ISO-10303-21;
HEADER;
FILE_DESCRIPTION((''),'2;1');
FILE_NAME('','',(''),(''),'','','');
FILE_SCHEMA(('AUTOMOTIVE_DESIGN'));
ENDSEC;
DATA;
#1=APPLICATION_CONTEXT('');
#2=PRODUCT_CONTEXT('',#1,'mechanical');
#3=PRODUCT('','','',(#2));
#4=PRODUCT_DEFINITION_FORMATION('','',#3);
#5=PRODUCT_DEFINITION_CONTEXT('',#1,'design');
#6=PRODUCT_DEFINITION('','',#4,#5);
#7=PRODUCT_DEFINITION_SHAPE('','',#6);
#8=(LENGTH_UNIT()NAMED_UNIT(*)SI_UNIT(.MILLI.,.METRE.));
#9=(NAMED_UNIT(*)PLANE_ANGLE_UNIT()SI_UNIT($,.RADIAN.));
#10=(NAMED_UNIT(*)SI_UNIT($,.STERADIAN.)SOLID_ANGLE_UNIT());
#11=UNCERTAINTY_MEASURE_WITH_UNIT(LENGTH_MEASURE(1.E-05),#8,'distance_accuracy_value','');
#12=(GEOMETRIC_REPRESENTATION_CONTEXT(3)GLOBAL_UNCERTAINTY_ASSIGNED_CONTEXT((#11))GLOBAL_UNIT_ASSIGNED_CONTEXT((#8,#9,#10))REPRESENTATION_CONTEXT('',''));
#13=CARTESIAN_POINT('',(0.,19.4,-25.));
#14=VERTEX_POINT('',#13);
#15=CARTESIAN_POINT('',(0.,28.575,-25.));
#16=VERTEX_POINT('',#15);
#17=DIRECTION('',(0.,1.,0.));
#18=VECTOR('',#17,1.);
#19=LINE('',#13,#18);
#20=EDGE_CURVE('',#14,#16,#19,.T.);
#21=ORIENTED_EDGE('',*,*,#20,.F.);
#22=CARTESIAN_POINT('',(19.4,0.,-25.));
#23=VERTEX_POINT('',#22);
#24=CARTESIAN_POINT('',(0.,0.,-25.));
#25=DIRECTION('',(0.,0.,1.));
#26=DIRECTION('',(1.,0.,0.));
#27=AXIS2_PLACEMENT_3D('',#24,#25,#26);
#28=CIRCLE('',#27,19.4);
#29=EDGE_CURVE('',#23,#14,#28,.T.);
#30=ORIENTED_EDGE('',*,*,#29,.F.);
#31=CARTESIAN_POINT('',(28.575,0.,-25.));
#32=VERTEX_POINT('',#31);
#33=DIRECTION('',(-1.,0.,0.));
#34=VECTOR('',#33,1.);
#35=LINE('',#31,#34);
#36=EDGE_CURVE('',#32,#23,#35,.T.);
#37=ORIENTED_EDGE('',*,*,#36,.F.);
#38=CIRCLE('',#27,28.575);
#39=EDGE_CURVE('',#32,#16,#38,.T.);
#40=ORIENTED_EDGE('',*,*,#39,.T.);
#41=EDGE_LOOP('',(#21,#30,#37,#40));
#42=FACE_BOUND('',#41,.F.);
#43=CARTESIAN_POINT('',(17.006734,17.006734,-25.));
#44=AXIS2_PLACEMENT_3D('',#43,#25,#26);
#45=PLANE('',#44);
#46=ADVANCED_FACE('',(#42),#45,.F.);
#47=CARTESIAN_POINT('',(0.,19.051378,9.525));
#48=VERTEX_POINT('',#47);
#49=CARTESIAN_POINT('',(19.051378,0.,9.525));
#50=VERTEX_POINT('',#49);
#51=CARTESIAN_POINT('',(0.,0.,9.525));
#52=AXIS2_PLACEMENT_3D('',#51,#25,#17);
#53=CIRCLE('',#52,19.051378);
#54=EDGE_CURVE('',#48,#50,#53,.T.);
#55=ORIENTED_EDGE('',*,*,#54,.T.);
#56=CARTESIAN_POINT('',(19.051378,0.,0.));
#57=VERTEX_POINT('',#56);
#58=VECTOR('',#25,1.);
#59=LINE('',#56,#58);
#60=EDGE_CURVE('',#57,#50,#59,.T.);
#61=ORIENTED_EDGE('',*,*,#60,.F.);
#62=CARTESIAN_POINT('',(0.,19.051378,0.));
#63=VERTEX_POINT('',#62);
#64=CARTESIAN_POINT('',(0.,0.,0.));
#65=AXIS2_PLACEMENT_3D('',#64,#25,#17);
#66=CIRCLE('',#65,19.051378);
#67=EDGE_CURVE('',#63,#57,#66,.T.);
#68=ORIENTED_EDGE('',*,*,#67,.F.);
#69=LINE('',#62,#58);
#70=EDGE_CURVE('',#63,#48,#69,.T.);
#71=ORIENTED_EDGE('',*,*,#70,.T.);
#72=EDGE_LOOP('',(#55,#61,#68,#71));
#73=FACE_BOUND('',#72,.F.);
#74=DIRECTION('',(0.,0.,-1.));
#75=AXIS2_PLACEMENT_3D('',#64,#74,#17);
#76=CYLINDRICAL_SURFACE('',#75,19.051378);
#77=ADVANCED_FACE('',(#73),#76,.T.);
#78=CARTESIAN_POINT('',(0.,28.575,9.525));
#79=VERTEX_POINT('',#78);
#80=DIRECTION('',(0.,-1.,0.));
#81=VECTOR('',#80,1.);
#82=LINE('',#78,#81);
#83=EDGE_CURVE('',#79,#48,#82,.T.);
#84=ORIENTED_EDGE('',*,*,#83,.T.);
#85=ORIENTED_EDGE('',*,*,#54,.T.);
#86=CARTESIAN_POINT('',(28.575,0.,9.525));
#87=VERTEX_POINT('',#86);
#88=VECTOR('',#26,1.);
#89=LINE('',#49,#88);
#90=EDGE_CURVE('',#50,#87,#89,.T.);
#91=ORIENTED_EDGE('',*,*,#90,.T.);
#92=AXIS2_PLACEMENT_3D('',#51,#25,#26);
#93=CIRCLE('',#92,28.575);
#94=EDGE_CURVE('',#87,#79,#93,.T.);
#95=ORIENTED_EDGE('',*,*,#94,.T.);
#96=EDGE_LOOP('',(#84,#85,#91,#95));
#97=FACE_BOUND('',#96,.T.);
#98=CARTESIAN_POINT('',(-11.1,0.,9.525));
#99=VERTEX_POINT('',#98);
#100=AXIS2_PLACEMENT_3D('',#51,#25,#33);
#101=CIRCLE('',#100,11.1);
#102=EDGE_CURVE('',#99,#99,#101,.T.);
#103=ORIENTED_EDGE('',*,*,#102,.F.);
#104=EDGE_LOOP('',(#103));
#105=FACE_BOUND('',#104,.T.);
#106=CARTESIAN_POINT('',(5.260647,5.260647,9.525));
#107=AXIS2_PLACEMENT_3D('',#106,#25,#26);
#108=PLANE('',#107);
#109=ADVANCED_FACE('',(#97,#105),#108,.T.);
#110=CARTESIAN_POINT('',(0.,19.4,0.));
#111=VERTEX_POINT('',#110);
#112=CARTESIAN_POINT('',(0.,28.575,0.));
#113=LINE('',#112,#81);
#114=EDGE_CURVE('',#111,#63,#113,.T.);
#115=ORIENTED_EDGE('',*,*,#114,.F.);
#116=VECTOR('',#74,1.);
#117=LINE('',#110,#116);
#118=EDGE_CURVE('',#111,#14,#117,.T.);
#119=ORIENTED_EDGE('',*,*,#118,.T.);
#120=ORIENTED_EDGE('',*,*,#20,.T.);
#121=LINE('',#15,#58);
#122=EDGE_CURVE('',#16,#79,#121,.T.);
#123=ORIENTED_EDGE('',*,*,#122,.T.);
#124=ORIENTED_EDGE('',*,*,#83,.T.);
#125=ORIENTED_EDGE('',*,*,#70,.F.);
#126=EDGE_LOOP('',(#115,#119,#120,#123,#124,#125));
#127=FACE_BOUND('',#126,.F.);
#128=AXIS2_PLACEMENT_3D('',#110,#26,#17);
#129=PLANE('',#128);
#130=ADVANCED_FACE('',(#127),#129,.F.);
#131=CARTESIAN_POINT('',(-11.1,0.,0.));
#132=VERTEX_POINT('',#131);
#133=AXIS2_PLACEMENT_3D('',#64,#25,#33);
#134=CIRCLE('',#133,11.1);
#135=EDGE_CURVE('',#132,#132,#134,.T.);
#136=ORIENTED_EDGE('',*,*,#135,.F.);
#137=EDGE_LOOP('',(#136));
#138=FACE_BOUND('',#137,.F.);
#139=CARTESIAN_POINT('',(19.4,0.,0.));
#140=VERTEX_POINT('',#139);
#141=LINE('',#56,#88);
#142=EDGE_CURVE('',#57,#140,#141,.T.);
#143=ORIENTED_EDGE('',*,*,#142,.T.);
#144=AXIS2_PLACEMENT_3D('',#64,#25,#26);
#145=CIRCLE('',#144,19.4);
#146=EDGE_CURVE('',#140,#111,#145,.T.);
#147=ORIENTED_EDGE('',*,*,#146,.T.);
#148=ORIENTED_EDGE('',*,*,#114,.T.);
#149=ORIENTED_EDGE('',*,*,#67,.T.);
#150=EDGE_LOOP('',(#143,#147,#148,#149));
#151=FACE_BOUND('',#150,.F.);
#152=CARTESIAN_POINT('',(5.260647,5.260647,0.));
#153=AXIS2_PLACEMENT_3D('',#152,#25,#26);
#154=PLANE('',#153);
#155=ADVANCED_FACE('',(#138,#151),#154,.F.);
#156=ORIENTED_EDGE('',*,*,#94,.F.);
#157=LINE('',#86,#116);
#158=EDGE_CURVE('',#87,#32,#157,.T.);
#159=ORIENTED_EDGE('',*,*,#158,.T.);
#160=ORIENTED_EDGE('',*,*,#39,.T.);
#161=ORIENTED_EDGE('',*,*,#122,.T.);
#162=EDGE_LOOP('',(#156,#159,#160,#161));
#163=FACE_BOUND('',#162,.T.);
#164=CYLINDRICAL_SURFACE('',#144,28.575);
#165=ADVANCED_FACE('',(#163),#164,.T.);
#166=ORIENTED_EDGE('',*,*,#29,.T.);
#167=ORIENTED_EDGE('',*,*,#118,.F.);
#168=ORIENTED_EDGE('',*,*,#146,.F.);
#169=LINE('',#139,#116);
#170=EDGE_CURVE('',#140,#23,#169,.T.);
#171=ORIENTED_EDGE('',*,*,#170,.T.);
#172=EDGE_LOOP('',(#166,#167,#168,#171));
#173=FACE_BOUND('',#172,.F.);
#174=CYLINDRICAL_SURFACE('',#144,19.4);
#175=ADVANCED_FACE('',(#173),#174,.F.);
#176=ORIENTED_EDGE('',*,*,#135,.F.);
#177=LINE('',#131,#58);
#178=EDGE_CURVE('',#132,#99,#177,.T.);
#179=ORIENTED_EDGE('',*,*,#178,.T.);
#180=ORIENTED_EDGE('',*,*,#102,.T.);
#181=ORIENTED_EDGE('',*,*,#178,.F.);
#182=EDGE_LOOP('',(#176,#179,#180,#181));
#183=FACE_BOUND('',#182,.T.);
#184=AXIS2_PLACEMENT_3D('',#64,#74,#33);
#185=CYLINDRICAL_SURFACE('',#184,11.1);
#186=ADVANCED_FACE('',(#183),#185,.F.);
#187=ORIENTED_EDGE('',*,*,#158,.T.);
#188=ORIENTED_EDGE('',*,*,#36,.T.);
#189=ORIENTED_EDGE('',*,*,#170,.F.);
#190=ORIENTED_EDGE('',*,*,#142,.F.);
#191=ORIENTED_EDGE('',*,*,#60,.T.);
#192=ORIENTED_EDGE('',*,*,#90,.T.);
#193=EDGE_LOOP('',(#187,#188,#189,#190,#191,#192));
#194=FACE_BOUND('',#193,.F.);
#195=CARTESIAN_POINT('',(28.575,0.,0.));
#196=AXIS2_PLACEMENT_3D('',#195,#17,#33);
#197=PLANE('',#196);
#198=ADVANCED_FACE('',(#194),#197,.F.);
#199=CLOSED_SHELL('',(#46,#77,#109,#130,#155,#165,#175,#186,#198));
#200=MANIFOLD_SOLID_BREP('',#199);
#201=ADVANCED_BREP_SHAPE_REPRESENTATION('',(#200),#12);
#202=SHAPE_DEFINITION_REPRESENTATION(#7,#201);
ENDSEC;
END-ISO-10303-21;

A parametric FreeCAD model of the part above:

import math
import FreeCAD as App
import Part
import Sketcher
from FreeCAD import Vector

doc = App.newDocument("Part")
params = doc.addObject("Spreadsheet::Sheet", "Params")
for row, (alias, value) in enumerate([
    ("sketch1_diameter", "22.2 mm"),
    ("pad1_length", "9.525 mm"),
    ("sketch2_radius", "19.4 mm"),
    ("pad2_length", "25 mm"),
], start=1):
    params.set(f"A{row}", alias)
    params.set(f"B{row}", "=" + value)
    params.setAlias(f"B{row}", alias)

body = doc.addObject("PartDesign::Body", "Body")

# Sketch on XY plane
sketch1 = body.newObject("Sketcher::SketchObject", "Sketch")
sketch1.AttachmentSupport = (doc.getObject("XY_Plane"), [""])
sketch1.MapMode = "FlatFace"
sketch1.addGeometry([
    Part.ArcOfCircle(Part.Circle(Vector(0, 0, 0), Vector(0, 0, 1), 19), math.radians(90), math.radians(360)),  # 0
    Part.LineSegment(Vector(19, 0, 0), Vector(29, 0, 0)),  # 1
    Part.ArcOfCircle(Part.Circle(Vector(0, 0, 0), Vector(0, 0, 1), 29), math.radians(0), math.radians(90)),  # 2
    Part.LineSegment(Vector(0, 29, 0), Vector(0, 19, 0)),  # 3
    Part.Circle(Vector(0, 0, 0), Vector(0, 0, 1), 11),  # 4
], False)
sketch1.addConstraint([
    Sketcher.Constraint("Coincident", 0, 2, 1, 1),
    Sketcher.Constraint("Coincident", 1, 2, 2, 1),
    Sketcher.Constraint("Coincident", 2, 2, 3, 1),
    Sketcher.Constraint("Coincident", 3, 2, 0, 1),
    Sketcher.Constraint("Horizontal", 1),
    Sketcher.Constraint("Vertical", 3),
    Sketcher.Constraint("Coincident", 0, 3, -1, 1),
    Sketcher.Constraint("Coincident", 2, 3, -1, 1),
    Sketcher.Constraint("Coincident", 4, 3, -1, 1),
    Sketcher.Constraint("PointOnObject", 0, 2, -1),
    Sketcher.Constraint("PointOnObject", 2, 2, -2),
    Sketcher.Constraint("Diameter", 4, 22.2),
    Sketcher.Constraint("Radius", 2, 28.575),
    Sketcher.Constraint("Radius", 0, 19.051378),
])
sketch1.setExpression("Constraints[11]", "Params.sketch1_diameter")
pad1 = body.newObject("PartDesign::Pad", "Pad")
pad1.Profile = sketch1
pad1.setExpression("Length", "Params.pad1_length")

# Sketch on XY plane
sketch2 = body.newObject("Sketcher::SketchObject", "Sketch001")
sketch2.AttachmentSupport = (doc.getObject("XY_Plane"), [""])
sketch2.MapMode = "FlatFace"
sketch2.addGeometry([
    Part.ArcOfCircle(Part.Circle(Vector(0, 0, 0), Vector(0, 0, 1), 29), math.radians(0), math.radians(90)),
    Part.LineSegment(Vector(29, 0, 0), Vector(19, 0, 0)),
    Part.ArcOfCircle(Part.Circle(Vector(0, 0, 0), Vector(0, 0, 1), 19), math.radians(0), math.radians(90)),
    Part.LineSegment(Vector(0, 19, 0), Vector(0, 29, 0)),
], False)
sketch2.addConstraint([
    Sketcher.Constraint("Coincident", 0, 1, 1, 1),
    Sketcher.Constraint("Coincident", 1, 2, 2, 1),
    Sketcher.Constraint("Coincident", 2, 2, 3, 1),
    Sketcher.Constraint("Coincident", 3, 2, 0, 2),
    Sketcher.Constraint("Horizontal", 1),
    Sketcher.Constraint("Vertical", 3),
    Sketcher.Constraint("Coincident", 0, 3, -1, 1),
    Sketcher.Constraint("Coincident", 2, 3, -1, 1),
    Sketcher.Constraint("PointOnObject", 0, 1, -1),
    Sketcher.Constraint("PointOnObject", 2, 2, -2),
    Sketcher.Constraint("Radius", 2, 19.4),
    Sketcher.Constraint("Radius", 0, 28.575),
])
sketch2.setExpression("Constraints[10]", "Params.sketch2_radius")
pad2 = body.newObject("PartDesign::Pad", "Pad001")
pad2.Profile = sketch2
pad2.setExpression("Length", "Params.pad2_length")
pad2.Reversed = True

doc.recompute()
